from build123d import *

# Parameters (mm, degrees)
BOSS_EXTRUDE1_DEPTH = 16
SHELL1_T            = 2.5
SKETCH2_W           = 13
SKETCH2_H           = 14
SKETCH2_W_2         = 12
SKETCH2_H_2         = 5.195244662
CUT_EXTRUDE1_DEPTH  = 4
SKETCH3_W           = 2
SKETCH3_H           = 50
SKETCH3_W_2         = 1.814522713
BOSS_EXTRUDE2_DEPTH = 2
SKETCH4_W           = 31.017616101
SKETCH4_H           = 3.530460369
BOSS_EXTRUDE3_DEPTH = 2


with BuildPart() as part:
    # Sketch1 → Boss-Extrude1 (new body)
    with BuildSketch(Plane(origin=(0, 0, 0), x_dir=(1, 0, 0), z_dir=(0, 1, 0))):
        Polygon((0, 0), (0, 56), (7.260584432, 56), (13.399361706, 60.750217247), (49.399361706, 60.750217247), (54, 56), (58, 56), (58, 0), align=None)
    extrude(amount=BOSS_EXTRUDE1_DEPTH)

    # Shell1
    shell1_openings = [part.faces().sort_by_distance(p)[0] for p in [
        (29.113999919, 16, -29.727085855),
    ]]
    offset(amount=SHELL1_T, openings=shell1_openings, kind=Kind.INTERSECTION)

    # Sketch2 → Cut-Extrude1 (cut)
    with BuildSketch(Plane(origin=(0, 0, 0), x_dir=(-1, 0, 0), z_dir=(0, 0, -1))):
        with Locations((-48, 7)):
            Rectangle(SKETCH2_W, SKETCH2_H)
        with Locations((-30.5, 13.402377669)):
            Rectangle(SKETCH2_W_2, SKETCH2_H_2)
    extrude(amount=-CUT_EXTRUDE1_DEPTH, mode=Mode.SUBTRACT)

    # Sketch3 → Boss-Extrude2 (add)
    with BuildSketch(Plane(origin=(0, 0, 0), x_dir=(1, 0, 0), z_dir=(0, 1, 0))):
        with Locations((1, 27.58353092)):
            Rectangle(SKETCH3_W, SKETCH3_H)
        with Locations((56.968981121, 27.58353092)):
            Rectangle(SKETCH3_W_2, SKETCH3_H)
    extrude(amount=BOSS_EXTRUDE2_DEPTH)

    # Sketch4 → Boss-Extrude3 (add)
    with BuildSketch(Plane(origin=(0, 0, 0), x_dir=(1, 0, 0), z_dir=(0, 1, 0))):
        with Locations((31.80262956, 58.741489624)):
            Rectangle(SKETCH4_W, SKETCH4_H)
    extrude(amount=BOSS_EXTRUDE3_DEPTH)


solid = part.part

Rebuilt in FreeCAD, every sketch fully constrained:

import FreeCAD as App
import Part
import Sketcher
from FreeCAD import Vector


def faces_at(feature, points):
    """Names of the faces that lie closest to the given points."""
    faces = feature.Shape.Faces
    near = lambda p: min(range(len(faces)), key=lambda i: faces[i].distToShape(Part.Vertex(*p))[0])
    return sorted({f"Face{near(p) + 1}" for p in points})

doc = App.newDocument("Part")
body = doc.addObject("PartDesign::Body", "Body")

sketch1 = body.newObject("Sketcher::SketchObject", "Sketch")
sketch1.AttachmentSupport = (doc.getObject("XZ_Plane"), [""])
sketch1.MapMode = "FlatFace"
sketch1.addGeometry([
    Part.LineSegment(Vector(0, -56, 0), Vector(0, 0, 0)),
    Part.LineSegment(Vector(0, 0, 0), Vector(58, 0, 0)),
    Part.LineSegment(Vector(58, 0, 0), Vector(58, -56, 0)),
    Part.LineSegment(Vector(58, -56, 0), Vector(54, -56, 0)),
    Part.LineSegment(Vector(54, -56, 0), Vector(49.4, -60.8, 0)),
    Part.LineSegment(Vector(49.4, -60.8, 0), Vector(13.4, -60.8, 0)),
    Part.LineSegment(Vector(13.4, -60.8, 0), Vector(7.3, -56, 0)),
    Part.LineSegment(Vector(7.3, -56, 0), Vector(0, -56, 0)),
], False)
sketch1.addConstraint([
    Sketcher.Constraint("Coincident", 0, 2, 1, 1),
    Sketcher.Constraint("Coincident", 1, 2, 2, 1),
    Sketcher.Constraint("Coincident", 2, 2, 3, 1),
    Sketcher.Constraint("Coincident", 3, 2, 4, 1),
    Sketcher.Constraint("Coincident", 4, 2, 5, 1),
    Sketcher.Constraint("Coincident", 5, 2, 6, 1),
    Sketcher.Constraint("Coincident", 6, 2, 7, 1),
    Sketcher.Constraint("Coincident", 7, 2, 0, 1),
    Sketcher.Constraint("Vertical", 0),
    Sketcher.Constraint("Horizontal", 1),
    Sketcher.Constraint("Vertical", 2),
    Sketcher.Constraint("Horizontal", 3),
    Sketcher.Constraint("Horizontal", 5),
    Sketcher.Constraint("Horizontal", 7),
    Sketcher.Constraint("Coincident", 0, 2, -1, 1),
    Sketcher.Constraint("Horizontal", 3, 2, 6, 2),
    Sketcher.Constraint("DistanceX", 1, 1, 1, 2, 58.0),
    Sketcher.Constraint("DistanceX", 3, 2, 3, 1, 4.0),
    Sketcher.Constraint("DistanceX", 5, 2, 5, 1, 36.0),
    Sketcher.Constraint("DistanceY", 0, 1, 0, 2, 56.0),
    Sketcher.Constraint("Distance", 4, 6.612899),
    Sketcher.Constraint("DistanceX", 7, 2, 7, 1, 7.260584),
    Sketcher.Constraint("DistanceX", -1, 1, 4, 2, 49.399362),
])
pad1 = body.newObject("PartDesign::Pad", "Pad")
pad1.Profile = sketch1
pad1.Length = 16
pad1.Reversed = True
doc.recompute()

thickness = body.newObject("PartDesign::Thickness", "Thickness")
thickness.Base = (pad1, faces_at(pad1, [(29, 16, -30.375)]))
thickness.Value = 2.5
thickness.Reversed = False
thickness.Join = "Intersection"

sketch2 = body.newObject("Sketcher::SketchObject", "Sketch001")
sketch2.AttachmentSupport = (doc.getObject("XY_Plane"), [""])
sketch2.MapMode = "FlatFace"
sketch2.addGeometry([
    Part.LineSegment(Vector(54, 14, 0), Vector(54, 0, 0)),
    Part.LineSegment(Vector(54, 0, 0), Vector(42, 0, 0)),
    Part.LineSegment(Vector(42, 0, 0), Vector(42, 14, 0)),
    Part.LineSegment(Vector(42, 14, 0), Vector(54, 14, 0)),
    Part.LineSegment(Vector(36, 16, 0), Vector(36, 11, 0)),
    Part.LineSegment(Vector(36, 11, 0), Vector(24, 11, 0)),
    Part.LineSegment(Vector(24, 11, 0), Vector(24, 16, 0)),
    Part.LineSegment(Vector(24, 16, 0), Vector(36, 16, 0)),
], False)
sketch2.addConstraint([
    Sketcher.Constraint("Coincident", 0, 2, 1, 1),
    Sketcher.Constraint("Coincident", 1, 2, 2, 1),
    Sketcher.Constraint("Coincident", 2, 2, 3, 1),
    Sketcher.Constraint("Coincident", 3, 2, 0, 1),
    Sketcher.Constraint("Coincident", 4, 2, 5, 1),
    Sketcher.Constraint("Coincident", 5, 2, 6, 1),
    Sketcher.Constraint("Coincident", 6, 2, 7, 1),
    Sketcher.Constraint("Coincident", 7, 2, 4, 1),
    Sketcher.Constraint("Vertical", 0),
    Sketcher.Constraint("Horizontal", 1),
    Sketcher.Constraint("Vertical", 2),
    Sketcher.Constraint("Horizontal", 3),
    Sketcher.Constraint("Vertical", 4),
    Sketcher.Constraint("Horizontal", 5),
    Sketcher.Constraint("Vertical", 6),
    Sketcher.Constraint("Horizontal", 7),
    Sketcher.Constraint("PointOnObject", 0, 2, -1),
    Sketcher.Constraint("DistanceX", 1, 2, 1, 1, 13.0),
    Sketcher.Constraint("DistanceX", 5, 2, 5, 1, 12.0),
    Sketcher.Constraint("DistanceY", 0, 2, 0, 1, 14.0),
    Sketcher.Constraint("DistanceY", -1, 1, 6, 2, 16.0),
    Sketcher.Constraint("DistanceX", 4, 2, 2, 2, 5.0),
    Sketcher.Constraint("DistanceX", -1, 1, 0, 2, 54.5),
    Sketcher.Constraint("DistanceY", 4, 2, 4, 1, 5.195245),
])
pocket1 = body.newObject("PartDesign::Pocket", "Pocket")
pocket1.Profile = sketch2
pocket1.Length = 4
pocket1.Reversed = True

sketch3 = body.newObject("Sketcher::SketchObject", "Sketch002")
sketch3.AttachmentSupport = (doc.getObject("XZ_Plane"), [""])
sketch3.MapMode = "FlatFace"
sketch3.addGeometry([
    Part.LineSegment(Vector(0, -52.6, 0), Vector(0, -2.6, 0)),
    Part.LineSegment(Vector(0, -2.6, 0), Vector(2, -2.6, 0)),
    Part.LineSegment(Vector(2, -2.6, 0), Vector(2, -52.6, 0)),
    Part.LineSegment(Vector(2, -52.6, 0), Vector(0, -52.6, 0)),
    Part.LineSegment(Vector(56.1, -52.6, 0), Vector(56.1, -2.6, 0)),
    Part.LineSegment(Vector(56.1, -2.6, 0), Vector(57.9, -2.6, 0)),
    Part.LineSegment(Vector(57.9, -2.6, 0), Vector(57.9, -52.6, 0)),
    Part.LineSegment(Vector(57.9, -52.6, 0), Vector(56.1, -52.6, 0)),
], False)
sketch3.addConstraint([
    Sketcher.Constraint("Coincident", 0, 2, 1, 1),
    Sketcher.Constraint("Coincident", 1, 2, 2, 1),
    Sketcher.Constraint("Coincident", 2, 2, 3, 1),
    Sketcher.Constraint("Coincident", 3, 2, 0, 1),
    Sketcher.Constraint("Coincident", 4, 2, 5, 1),
    Sketcher.Constraint("Coincident", 5, 2, 6, 1),
    Sketcher.Constraint("Coincident", 6, 2, 7, 1),
    Sketcher.Constraint("Coincident", 7, 2, 4, 1),
    Sketcher.Constraint("Vertical", 0),
    Sketcher.Constraint("Horizontal", 1),
    Sketcher.Constraint("Vertical", 2),
    Sketcher.Constraint("Horizontal", 3),
    Sketcher.Constraint("Vertical", 4),
    Sketcher.Constraint("Horizontal", 5),
    Sketcher.Constraint("Vertical", 6),
    Sketcher.Constraint("Horizontal", 7),
    Sketcher.Constraint("PointOnObject", 0, 2, -2),
    Sketcher.Constraint("Horizontal", 1, 2, 4, 2),
    Sketcher.Constraint("Horizontal", 3, 2, 6, 2),
    Sketcher.Constraint("DistanceX", 1, 1, 1, 2, 2.0),
    Sketcher.Constraint("DistanceY", 0, 1, 0, 2, 50.0),
    Sketcher.Constraint("DistanceX", 5, 1, 5, 2, 1.814523),
    Sketcher.Constraint("DistanceY", 0, 2, -1, 1, 2.583531),
    Sketcher.Constraint("DistanceX", -1, 1, 4, 2, 56.06172),
])
pad2 = body.newObject("PartDesign::Pad", "Pad001")
pad2.Profile = sketch3
pad2.Length = 2
pad2.Reversed = True

sketch4 = body.newObject("Sketcher::SketchObject", "Sketch003")
sketch4.AttachmentSupport = (doc.getObject("XZ_Plane"), [""])
sketch4.MapMode = "FlatFace"
sketch4.addGeometry([
    Part.LineSegment(Vector(16.3, -60.5, 0), Vector(16.3, -57, 0)),
    Part.LineSegment(Vector(16.3, -57, 0), Vector(47.3, -57, 0)),
    Part.LineSegment(Vector(47.3, -57, 0), Vector(47.3, -60.5, 0)),
    Part.LineSegment(Vector(47.3, -60.5, 0), Vector(16.3, -60.5, 0)),
], False)
sketch4.addConstraint([
    Sketcher.Constraint("Coincident", 0, 2, 1, 1),
    Sketcher.Constraint("Coincident", 1, 2, 2, 1),
    Sketcher.Constraint("Coincident", 2, 2, 3, 1),
    Sketcher.Constraint("Coincident", 3, 2, 0, 1),
    Sketcher.Constraint("Vertical", 0),
    Sketcher.Constraint("Horizontal", 1),
    Sketcher.Constraint("Vertical", 2),
    Sketcher.Constraint("Horizontal", 3),
    Sketcher.Constraint("DistanceY", 0, 1, 0, 2, 3.53046),
    Sketcher.Constraint("DistanceX", 1, 1, 1, 2, 31.017616),
    Sketcher.Constraint("DistanceX", -1, 1, 0, 2, 16.293822),
    Sketcher.Constraint("DistanceY", 0, 2, -1, 1, 56.976259),
])
pad3 = body.newObject("PartDesign::Pad", "Pad002")
pad3.Profile = sketch4
pad3.Length = 2
pad3.Reversed = True

doc.recompute()
